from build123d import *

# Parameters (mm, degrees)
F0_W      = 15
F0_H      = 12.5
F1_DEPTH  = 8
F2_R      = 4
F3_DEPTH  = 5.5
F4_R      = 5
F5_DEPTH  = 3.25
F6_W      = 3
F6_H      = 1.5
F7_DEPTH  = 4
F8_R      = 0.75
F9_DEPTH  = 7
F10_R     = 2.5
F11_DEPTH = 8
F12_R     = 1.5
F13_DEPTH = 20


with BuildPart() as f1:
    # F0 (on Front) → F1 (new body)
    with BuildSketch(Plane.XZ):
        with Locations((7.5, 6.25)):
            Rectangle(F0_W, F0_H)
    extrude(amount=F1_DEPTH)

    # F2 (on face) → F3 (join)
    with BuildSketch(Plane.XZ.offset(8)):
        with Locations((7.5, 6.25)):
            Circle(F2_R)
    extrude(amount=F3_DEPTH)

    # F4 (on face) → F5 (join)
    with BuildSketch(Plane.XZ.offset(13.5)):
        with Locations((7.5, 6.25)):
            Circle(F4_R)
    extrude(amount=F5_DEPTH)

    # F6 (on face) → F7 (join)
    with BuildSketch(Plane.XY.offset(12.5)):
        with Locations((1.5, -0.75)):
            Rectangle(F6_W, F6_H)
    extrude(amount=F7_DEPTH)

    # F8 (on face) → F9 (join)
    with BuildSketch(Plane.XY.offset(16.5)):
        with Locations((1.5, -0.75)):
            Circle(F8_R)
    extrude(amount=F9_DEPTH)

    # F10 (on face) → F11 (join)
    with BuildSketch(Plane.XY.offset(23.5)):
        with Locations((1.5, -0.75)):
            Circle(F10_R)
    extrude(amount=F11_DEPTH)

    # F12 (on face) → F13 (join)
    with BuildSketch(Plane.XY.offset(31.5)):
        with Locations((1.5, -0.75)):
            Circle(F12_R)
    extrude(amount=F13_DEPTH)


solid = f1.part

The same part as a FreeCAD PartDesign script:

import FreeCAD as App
import Part
import Sketcher


def add_polygon(sketch, points):
    """Adds a closed chain of lines whose ends are joined by coincident constraints."""
    first, n = sketch.GeometryCount, len(points)
    for a, b in zip(points, points[1:] + points[:1]):
        sketch.addGeometry(Part.LineSegment(App.Vector(*a, 0), App.Vector(*b, 0)), False)
    for i in range(n):
        sketch.addConstraint(Sketcher.Constraint("Coincident", first + i, 2, first + (i + 1) % n, 1))

doc = App.newDocument("Part")
body = doc.addObject("PartDesign::Body", "Body")

# Sketch on XZ plane
sketch1 = body.newObject("Sketcher::SketchObject", "Sketch")
sketch1.AttachmentSupport = (doc.getObject("XZ_Plane"), [""])
sketch1.MapMode = "FlatFace"
add_polygon(sketch1, [(0, 12), (0, 0), (15, 0), (15, 12)])  # lines 0-3
sketch1.addConstraint(Sketcher.Constraint("Vertical", 0))
sketch1.addConstraint(Sketcher.Constraint("Horizontal", 1))
sketch1.addConstraint(Sketcher.Constraint("Vertical", 2))
sketch1.addConstraint(Sketcher.Constraint("Horizontal", 3))
sketch1.addConstraint(Sketcher.Constraint("Coincident", 0, 2, -1, 1))
sketch1.addConstraint(Sketcher.Constraint("DistanceX", 1, 1, 1, 2, 15.0))
sketch1.addConstraint(Sketcher.Constraint("DistanceY", 0, 2, 0, 1, 12.5))
pad1 = body.newObject("PartDesign::Pad", "Pad")
pad1.Profile = sketch1
pad1.Length = 8

# Sketch on XZ plane
sketch2 = body.newObject("Sketcher::SketchObject", "Sketch001")
sketch2.AttachmentSupport = (doc.getObject("XZ_Plane"), [""])
sketch2.MapMode = "FlatFace"
sketch2.AttachmentOffset = App.Placement(App.Vector(0, 0, 8), App.Rotation())
sketch2.addGeometry(Part.Circle(App.Vector(7.5, 6.2, 0), App.Vector(0, 0, 1), 4), False)
sketch2.addConstraint(Sketcher.Constraint("Diameter", 0, 8.0))
sketch2.addConstraint(Sketcher.Constraint("DistanceX", -1, 1, 0, 3, 7.5))
sketch2.addConstraint(Sketcher.Constraint("DistanceY", -1, 1, 0, 3, 6.25))
pad2 = body.newObject("PartDesign::Pad", "Pad001")
pad2.Profile = sketch2
pad2.Length = 5.5

# Sketch on XZ plane
sketch3 = body.newObject("Sketcher::SketchObject", "Sketch002")
sketch3.AttachmentSupport = (doc.getObject("XZ_Plane"), [""])
sketch3.MapMode = "FlatFace"
sketch3.AttachmentOffset = App.Placement(App.Vector(0, 0, 13.5), App.Rotation())
sketch3.addGeometry(Part.Circle(App.Vector(8, 6, 0), App.Vector(0, 0, 1), 5), False)
sketch3.addConstraint(Sketcher.Constraint("Diameter", 0, 10.0))
sketch3.addConstraint(Sketcher.Constraint("DistanceX", -1, 1, 0, 3, 7.5))
sketch3.addConstraint(Sketcher.Constraint("DistanceY", -1, 1, 0, 3, 6.25))
pad3 = body.newObject("PartDesign::Pad", "Pad002")
pad3.Profile = sketch3
pad3.Length = 3.25

# Sketch on XY plane
sketch4 = body.newObject("Sketcher::SketchObject", "Sketch003")
sketch4.AttachmentSupport = (doc.getObject("XY_Plane"), [""])
sketch4.MapMode = "FlatFace"
sketch4.AttachmentOffset = App.Placement(App.Vector(0, 0, 12.5), App.Rotation())
add_polygon(sketch4, [(0, 0), (0, -1.5), (3, -1.5), (3, 0)])  # lines 0-3
sketch4.addConstraint(Sketcher.Constraint("Vertical", 0))
sketch4.addConstraint(Sketcher.Constraint("Horizontal", 1))
sketch4.addConstraint(Sketcher.Constraint("Vertical", 2))
sketch4.addConstraint(Sketcher.Constraint("Horizontal", 3))
sketch4.addConstraint(Sketcher.Constraint("Coincident", 3, 2, -1, 1))
sketch4.addConstraint(Sketcher.Constraint("DistanceX", 1, 1, 1, 2, 3.0))
sketch4.addConstraint(Sketcher.Constraint("DistanceY", 0, 2, 0, 1, 1.5))
pad4 = body.newObject("PartDesign::Pad", "Pad003")
pad4.Profile = sketch4
pad4.Length = 4

# Sketch on XY plane
sketch5 = body.newObject("Sketcher::SketchObject", "Sketch004")
sketch5.AttachmentSupport = (doc.getObject("XY_Plane"), [""])
sketch5.MapMode = "FlatFace"
sketch5.AttachmentOffset = App.Placement(App.Vector(0, 0, 16.5), App.Rotation())
sketch5.addGeometry(Part.Circle(App.Vector(1.5, -0.8, 0), App.Vector(0, 0, 1), 0.8), False)
sketch5.addConstraint(Sketcher.Constraint("Diameter", 0, 1.5))
sketch5.addConstraint(Sketcher.Constraint("DistanceX", -1, 1, 0, 3, 1.5))
sketch5.addConstraint(Sketcher.Constraint("DistanceY", 0, 3, -1, 1, 0.75))
pad5 = body.newObject("PartDesign::Pad", "Pad004")
pad5.Profile = sketch5
pad5.Length = 7

# Sketch on XY plane
sketch6 = body.newObject("Sketcher::SketchObject", "Sketch005")
sketch6.AttachmentSupport = (doc.getObject("XY_Plane"), [""])
sketch6.MapMode = "FlatFace"
sketch6.AttachmentOffset = App.Placement(App.Vector(0, 0, 23.5), App.Rotation())
sketch6.addGeometry(Part.Circle(App.Vector(1.5, -0.8, 0), App.Vector(0, 0, 1), 2.5), False)
sketch6.addConstraint(Sketcher.Constraint("Diameter", 0, 5.0))
sketch6.addConstraint(Sketcher.Constraint("DistanceX", -1, 1, 0, 3, 1.5))
sketch6.addConstraint(Sketcher.Constraint("DistanceY", 0, 3, -1, 1, 0.75))
pad6 = body.newObject("PartDesign::Pad", "Pad005")
pad6.Profile = sketch6
pad6.Length = 8

# Sketch on XY plane
sketch7 = body.newObject("Sketcher::SketchObject", "Sketch006")
sketch7.AttachmentSupport = (doc.getObject("XY_Plane"), [""])
sketch7.MapMode = "FlatFace"
sketch7.AttachmentOffset = App.Placement(App.Vector(0, 0, 31.5), App.Rotation())
sketch7.addGeometry(Part.Circle(App.Vector(1.5, -0.8, 0), App.Vector(0, 0, 1), 1.5), False)
sketch7.addConstraint(Sketcher.Constraint("Diameter", 0, 3.0))
sketch7.addConstraint(Sketcher.Constraint("DistanceX", -1, 1, 0, 3, 1.5))
sketch7.addConstraint(Sketcher.Constraint("DistanceY", 0, 3, -1, 1, 0.75))
pad7 = body.newObject("PartDesign::Pad", "Pad006")
pad7.Profile = sketch7
pad7.Length = 20

doc.recompute()
